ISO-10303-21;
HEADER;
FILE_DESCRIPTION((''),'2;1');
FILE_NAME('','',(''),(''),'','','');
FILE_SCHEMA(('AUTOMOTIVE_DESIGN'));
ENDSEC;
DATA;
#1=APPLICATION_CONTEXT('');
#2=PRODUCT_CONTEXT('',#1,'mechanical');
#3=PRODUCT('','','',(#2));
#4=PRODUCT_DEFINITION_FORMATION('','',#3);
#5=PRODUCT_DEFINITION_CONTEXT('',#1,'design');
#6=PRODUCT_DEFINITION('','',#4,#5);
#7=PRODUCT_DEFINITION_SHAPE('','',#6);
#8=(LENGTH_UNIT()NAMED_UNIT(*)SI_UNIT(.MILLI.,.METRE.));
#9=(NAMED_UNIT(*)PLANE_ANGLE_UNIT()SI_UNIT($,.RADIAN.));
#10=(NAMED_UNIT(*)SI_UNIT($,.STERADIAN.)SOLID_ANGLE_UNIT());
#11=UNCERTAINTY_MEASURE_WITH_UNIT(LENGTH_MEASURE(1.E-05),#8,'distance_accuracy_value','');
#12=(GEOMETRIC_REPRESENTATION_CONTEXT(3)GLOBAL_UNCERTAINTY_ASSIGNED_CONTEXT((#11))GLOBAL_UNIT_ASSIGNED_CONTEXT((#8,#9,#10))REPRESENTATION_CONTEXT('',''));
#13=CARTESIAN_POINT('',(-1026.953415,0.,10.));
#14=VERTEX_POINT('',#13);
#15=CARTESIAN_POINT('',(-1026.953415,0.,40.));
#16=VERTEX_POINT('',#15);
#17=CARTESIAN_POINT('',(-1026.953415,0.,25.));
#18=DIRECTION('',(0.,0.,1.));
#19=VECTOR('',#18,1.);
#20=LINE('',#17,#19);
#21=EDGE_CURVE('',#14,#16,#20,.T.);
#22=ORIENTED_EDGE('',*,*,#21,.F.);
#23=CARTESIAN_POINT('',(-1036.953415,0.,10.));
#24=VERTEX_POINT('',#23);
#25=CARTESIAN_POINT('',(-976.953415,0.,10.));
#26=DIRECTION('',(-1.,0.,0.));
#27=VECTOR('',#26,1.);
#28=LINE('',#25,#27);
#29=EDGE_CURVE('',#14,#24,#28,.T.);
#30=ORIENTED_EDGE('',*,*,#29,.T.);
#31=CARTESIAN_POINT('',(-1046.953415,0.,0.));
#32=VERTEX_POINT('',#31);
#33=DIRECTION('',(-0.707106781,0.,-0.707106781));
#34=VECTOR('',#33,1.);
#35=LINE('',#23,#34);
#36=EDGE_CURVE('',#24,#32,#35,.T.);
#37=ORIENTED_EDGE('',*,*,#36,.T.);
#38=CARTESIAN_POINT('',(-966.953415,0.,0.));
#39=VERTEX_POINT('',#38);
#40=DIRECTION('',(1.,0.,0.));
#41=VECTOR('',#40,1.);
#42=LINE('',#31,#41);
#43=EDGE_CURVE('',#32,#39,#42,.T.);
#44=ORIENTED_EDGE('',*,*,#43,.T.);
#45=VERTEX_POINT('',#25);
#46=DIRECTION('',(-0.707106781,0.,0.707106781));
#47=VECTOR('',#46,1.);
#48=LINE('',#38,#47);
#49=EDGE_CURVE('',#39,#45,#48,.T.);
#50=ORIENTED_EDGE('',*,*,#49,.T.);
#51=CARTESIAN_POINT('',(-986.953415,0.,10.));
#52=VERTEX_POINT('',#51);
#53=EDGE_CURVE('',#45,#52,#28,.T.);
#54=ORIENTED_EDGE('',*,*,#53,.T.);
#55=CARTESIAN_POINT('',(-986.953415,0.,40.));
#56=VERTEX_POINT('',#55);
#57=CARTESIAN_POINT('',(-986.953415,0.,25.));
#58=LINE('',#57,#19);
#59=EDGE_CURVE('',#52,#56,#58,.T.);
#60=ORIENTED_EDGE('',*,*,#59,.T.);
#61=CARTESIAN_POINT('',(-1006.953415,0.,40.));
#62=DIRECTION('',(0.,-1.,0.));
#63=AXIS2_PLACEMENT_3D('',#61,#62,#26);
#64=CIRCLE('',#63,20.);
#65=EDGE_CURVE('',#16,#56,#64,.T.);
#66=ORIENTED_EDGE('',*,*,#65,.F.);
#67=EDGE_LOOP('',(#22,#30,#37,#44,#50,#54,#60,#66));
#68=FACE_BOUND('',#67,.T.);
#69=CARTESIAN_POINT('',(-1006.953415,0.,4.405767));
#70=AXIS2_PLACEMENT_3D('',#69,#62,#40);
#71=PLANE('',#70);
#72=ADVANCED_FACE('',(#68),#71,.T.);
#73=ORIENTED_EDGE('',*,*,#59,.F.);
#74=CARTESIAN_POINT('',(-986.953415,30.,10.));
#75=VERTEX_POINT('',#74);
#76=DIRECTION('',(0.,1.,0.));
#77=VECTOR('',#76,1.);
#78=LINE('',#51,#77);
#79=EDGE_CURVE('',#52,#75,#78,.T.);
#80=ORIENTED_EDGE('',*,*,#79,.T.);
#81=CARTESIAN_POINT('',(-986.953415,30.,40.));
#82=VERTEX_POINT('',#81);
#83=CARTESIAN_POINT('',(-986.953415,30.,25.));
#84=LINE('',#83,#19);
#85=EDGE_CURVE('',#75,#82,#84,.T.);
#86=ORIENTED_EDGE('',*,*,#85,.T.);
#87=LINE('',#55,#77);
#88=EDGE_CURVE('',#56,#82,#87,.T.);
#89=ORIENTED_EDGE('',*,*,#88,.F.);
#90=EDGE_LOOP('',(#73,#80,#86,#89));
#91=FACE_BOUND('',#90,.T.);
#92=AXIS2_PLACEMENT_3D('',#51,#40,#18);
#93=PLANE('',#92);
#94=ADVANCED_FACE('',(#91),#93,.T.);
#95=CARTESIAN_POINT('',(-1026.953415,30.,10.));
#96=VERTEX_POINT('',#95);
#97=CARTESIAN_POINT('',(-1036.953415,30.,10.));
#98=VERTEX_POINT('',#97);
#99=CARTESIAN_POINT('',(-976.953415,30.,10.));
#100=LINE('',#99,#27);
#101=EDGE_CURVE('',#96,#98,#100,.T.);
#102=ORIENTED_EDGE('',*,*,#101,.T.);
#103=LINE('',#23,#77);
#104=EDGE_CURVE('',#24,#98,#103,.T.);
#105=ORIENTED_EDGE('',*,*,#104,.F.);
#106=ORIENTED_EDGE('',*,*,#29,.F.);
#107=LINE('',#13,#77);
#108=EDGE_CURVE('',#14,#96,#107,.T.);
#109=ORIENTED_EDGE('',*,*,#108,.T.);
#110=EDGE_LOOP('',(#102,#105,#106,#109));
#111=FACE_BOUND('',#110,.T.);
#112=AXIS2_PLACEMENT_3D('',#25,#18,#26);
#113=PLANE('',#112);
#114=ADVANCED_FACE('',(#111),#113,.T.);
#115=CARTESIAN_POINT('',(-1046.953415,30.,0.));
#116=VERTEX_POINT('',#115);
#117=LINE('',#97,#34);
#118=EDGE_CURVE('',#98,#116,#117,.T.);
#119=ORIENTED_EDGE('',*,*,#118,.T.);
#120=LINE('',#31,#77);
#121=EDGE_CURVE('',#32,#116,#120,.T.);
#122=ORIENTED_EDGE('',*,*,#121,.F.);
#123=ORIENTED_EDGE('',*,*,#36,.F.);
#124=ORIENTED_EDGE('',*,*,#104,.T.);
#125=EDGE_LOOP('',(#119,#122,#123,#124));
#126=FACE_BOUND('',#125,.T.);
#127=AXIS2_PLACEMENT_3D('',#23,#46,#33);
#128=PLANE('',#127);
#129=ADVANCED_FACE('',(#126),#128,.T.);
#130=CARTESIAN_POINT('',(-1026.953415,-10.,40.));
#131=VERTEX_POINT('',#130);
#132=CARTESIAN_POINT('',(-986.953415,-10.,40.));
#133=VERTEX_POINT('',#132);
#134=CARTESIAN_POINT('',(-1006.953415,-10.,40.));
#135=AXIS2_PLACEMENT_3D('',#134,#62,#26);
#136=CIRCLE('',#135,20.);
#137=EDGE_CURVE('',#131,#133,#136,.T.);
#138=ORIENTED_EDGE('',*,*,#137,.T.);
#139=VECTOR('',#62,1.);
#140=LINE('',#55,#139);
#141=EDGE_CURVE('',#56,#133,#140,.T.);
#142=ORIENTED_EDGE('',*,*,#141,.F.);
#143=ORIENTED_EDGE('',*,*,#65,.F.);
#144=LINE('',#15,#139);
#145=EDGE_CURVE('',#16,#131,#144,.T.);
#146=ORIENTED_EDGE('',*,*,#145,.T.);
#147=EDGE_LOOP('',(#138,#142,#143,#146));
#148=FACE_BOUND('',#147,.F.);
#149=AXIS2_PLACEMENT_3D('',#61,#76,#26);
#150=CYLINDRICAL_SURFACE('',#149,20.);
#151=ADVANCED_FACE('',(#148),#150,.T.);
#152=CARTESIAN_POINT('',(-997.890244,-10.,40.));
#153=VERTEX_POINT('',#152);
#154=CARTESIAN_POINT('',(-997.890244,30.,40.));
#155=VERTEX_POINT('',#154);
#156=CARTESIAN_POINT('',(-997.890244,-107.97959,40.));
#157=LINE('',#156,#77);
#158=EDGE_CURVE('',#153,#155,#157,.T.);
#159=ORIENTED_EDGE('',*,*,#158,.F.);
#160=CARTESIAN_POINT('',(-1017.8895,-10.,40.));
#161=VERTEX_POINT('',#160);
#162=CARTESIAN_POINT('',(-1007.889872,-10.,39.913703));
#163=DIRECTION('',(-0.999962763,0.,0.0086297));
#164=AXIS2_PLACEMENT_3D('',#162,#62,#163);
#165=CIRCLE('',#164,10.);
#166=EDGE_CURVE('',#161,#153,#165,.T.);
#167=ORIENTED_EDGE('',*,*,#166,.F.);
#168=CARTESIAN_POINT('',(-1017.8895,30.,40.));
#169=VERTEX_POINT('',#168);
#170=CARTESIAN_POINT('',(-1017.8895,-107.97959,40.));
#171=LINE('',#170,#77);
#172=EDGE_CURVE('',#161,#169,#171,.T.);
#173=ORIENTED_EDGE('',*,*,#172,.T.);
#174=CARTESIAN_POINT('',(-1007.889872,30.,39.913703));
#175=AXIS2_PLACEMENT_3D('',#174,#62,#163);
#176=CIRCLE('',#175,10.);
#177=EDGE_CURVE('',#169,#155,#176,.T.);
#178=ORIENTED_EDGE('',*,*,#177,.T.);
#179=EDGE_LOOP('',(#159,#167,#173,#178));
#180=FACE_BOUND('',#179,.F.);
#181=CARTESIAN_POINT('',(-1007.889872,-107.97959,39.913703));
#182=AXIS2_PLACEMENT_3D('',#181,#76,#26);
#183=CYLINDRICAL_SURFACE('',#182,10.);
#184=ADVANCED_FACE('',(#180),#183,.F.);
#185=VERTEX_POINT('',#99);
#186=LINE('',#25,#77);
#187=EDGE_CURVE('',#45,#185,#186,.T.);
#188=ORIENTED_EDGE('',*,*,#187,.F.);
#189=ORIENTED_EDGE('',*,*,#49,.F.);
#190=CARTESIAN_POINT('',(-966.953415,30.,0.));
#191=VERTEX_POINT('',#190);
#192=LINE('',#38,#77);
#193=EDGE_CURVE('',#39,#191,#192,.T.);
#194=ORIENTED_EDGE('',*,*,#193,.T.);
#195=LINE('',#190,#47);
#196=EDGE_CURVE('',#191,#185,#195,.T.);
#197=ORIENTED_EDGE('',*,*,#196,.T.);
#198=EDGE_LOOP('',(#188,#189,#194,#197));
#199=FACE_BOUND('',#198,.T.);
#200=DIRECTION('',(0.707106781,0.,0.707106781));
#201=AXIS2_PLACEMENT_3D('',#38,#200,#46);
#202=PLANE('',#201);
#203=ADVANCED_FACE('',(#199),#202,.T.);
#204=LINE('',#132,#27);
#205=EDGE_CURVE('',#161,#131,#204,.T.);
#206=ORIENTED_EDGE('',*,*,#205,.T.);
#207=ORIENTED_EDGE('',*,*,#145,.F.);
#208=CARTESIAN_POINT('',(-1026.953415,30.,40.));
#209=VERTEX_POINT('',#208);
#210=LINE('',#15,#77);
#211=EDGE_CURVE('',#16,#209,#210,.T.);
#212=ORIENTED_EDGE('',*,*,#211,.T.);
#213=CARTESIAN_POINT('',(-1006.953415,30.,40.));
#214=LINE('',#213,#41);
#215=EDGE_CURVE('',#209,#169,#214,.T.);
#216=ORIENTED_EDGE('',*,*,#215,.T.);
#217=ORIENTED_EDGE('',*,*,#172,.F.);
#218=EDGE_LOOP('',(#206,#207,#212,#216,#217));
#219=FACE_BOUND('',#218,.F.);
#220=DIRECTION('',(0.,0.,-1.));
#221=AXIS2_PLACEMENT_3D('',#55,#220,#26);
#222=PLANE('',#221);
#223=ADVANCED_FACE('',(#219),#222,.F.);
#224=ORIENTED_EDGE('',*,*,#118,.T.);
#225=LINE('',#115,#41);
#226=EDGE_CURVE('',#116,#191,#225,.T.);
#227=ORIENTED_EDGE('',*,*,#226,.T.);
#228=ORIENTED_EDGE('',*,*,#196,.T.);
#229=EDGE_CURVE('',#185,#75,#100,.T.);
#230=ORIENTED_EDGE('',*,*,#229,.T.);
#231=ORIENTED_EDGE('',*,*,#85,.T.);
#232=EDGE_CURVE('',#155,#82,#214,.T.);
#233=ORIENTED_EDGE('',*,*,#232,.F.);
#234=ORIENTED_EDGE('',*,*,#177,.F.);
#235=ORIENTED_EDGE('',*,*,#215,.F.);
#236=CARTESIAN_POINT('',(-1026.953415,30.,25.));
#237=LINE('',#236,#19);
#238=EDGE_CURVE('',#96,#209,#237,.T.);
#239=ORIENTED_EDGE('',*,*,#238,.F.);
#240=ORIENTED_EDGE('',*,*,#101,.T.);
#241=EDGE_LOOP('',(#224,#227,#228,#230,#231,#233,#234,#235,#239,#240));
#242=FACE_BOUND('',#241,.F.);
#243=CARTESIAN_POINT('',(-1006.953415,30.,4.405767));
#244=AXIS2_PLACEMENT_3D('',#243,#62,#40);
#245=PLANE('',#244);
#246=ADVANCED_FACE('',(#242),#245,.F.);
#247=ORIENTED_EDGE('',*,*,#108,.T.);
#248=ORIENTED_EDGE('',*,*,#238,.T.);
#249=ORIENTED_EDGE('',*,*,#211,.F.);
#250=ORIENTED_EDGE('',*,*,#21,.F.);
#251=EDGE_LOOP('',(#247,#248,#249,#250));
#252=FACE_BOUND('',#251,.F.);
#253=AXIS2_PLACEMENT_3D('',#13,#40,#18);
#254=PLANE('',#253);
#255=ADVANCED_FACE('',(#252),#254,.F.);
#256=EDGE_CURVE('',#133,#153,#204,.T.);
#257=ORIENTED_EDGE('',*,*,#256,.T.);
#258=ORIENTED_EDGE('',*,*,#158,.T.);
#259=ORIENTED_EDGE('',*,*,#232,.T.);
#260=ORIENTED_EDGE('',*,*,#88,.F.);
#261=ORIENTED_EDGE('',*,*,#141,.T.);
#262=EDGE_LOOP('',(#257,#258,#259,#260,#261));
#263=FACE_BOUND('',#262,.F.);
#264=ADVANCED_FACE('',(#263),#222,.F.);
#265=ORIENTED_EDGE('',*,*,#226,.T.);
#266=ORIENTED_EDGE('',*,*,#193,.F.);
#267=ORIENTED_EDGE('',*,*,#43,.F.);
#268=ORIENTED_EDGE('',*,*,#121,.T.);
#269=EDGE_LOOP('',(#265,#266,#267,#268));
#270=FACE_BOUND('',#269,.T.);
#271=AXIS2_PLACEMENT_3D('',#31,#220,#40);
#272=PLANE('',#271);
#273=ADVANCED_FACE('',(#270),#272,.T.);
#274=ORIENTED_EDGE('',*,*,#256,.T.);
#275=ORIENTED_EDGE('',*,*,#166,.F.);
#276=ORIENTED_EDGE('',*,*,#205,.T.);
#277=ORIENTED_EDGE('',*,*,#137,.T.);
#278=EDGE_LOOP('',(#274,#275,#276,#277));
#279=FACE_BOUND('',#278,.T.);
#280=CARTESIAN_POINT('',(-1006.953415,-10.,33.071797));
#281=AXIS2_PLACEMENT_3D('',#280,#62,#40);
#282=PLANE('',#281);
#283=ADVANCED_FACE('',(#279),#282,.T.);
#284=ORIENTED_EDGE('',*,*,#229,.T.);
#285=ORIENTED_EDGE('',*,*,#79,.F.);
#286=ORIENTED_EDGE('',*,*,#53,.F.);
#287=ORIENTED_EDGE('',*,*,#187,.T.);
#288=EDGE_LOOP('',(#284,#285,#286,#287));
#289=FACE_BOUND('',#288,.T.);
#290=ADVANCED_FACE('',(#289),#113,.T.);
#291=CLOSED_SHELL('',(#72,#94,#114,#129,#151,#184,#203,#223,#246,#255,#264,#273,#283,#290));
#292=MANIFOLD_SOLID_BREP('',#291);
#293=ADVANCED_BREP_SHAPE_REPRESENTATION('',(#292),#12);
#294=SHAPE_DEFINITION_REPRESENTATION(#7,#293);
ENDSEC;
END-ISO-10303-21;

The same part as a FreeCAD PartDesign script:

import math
import FreeCAD as App
import Part
import Sketcher

V = App.Vector


def add_polygon(sketch, points):
    """Adds a closed chain of lines whose ends are joined by coincident constraints."""
    first, n = sketch.GeometryCount, len(points)
    for a, b in zip(points, points[1:] + points[:1]):
        sketch.addGeometry(Part.LineSegment(App.Vector(*a, 0), App.Vector(*b, 0)), False)
    for i in range(n):
        sketch.addConstraint(Sketcher.Constraint("Coincident", first + i, 2, first + (i + 1) % n, 1))

doc = App.newDocument("Part")
body = doc.addObject("PartDesign::Body", "Body")

# Sketch on XZ plane
sketch1 = body.newObject("Sketcher::SketchObject", "Sketch")
sketch1.AttachmentSupport = (doc.getObject("XZ_Plane"), [""])
sketch1.MapMode = "FlatFace"
add_polygon(sketch1, [(-1036.953415, 10), (-1046.953415, 0), (-966.953415, 0), (-976.953415, 10)])  # lines 0-3
sketch1.addConstraint(Sketcher.Constraint("Horizontal", 1))
sketch1.addConstraint(Sketcher.Constraint("Horizontal", 3))
sketch1.addConstraint(Sketcher.Constraint("PointOnObject", 0, 2, -1))
sketch1.addConstraint(Sketcher.Constraint("Perpendicular", 0, 2))
sketch1.addConstraint(Sketcher.Constraint("Equal", 0, 2))
sketch1.addConstraint(Sketcher.Constraint("DistanceX", 1, 1, 1, 2, 80.0))
sketch1.addConstraint(Sketcher.Constraint("DistanceX", 3, 2, 3, 1, 60.0))
sketch1.addConstraint(Sketcher.Constraint("DistanceX", 0, 2, -1, 1, 1046.953415))
pad1 = body.newObject("PartDesign::Pad", "Pad")
pad1.Profile = sketch1
pad1.Length = 30
pad1.Reversed = True

# Sketch on XZ plane
sketch2 = body.newObject("Sketcher::SketchObject", "Sketch001")
sketch2.AttachmentSupport = (doc.getObject("XZ_Plane"), [""])
sketch2.MapMode = "FlatFace"
add_polygon(sketch2, [(-1026.953415, 40), (-1026.953415, 10), (-986.953415, 10), (-986.953415, 40)])  # lines 0-3
sketch2.addConstraint(Sketcher.Constraint("Vertical", 0))
sketch2.addConstraint(Sketcher.Constraint("Horizontal", 1))
sketch2.addConstraint(Sketcher.Constraint("Vertical", 2))
sketch2.addConstraint(Sketcher.Constraint("Horizontal", 3))
sketch2.addConstraint(Sketcher.Constraint("DistanceX", 1, 1, 1, 2, 40.0))
sketch2.addConstraint(Sketcher.Constraint("DistanceY", 0, 2, 0, 1, 30.0))
sketch2.addConstraint(Sketcher.Constraint("DistanceY", -1, 1, 0, 2, 10.0))
sketch2.addConstraint(Sketcher.Constraint("DistanceX", 0, 2, -1, 1, 1026.953415))
pad2 = body.newObject("PartDesign::Pad", "Pad001")
pad2.Profile = sketch2
pad2.Length = 30
pad2.Reversed = True

# Sketch on XZ plane
sketch3 = body.newObject("Sketcher::SketchObject", "Sketch002")
sketch3.AttachmentSupport = (doc.getObject("XZ_Plane"), [""])
sketch3.MapMode = "FlatFace"
sketch3.addGeometry(Part.LineSegment(V(-986.953415, 40, 0), V(-1026.953415, 40, 0)), False)
sketch3.addGeometry(Part.ArcOfCircle(Part.Circle(V(-1006.953415, 40, 0), V(0, 0, 1), 20), math.radians(180), math.radians(360)), False)
sketch3.addConstraint(Sketcher.Constraint("Coincident", 0, 1, 1, 2))
sketch3.addConstraint(Sketcher.Constraint("Coincident", 1, 1, 0, 2))
sketch3.addConstraint(Sketcher.Constraint("Horizontal", 0))
sketch3.addConstraint(Sketcher.Constraint("Horizontal", 1, 3, 0, 1))
sketch3.addConstraint(Sketcher.Constraint("Radius", 1, 20.0))
sketch3.addConstraint(Sketcher.Constraint("DistanceY", -1, 1, 1, 3, 40.0))
sketch3.addConstraint(Sketcher.Constraint("DistanceX", 1, 3, -1, 1, 1006.953415))
pad3 = body.newObject("PartDesign::Pad", "Pad002")
pad3.Profile = sketch3
pad3.Length = 10

# Sketch on XZ plane
sketch4 = body.newObject("Sketcher::SketchObject", "Sketch003")
sketch4.AttachmentSupport = (doc.getObject("XZ_Plane"), [""])
sketch4.MapMode = "FlatFace"
sketch4.AttachmentOffset = App.Placement(V(0, 0, 10), App.Rotation())
sketch4.addGeometry(Part.Circle(V(-1007.889872, 39.913703, 0), V(0, 0, 1), 10), False)
sketch4.addConstraint(Sketcher.Constraint("Diameter", 0, 20.0))
sketch4.addConstraint(Sketcher.Constraint("DistanceX", 0, 3, -1, 1, 1007.889872))
sketch4.addConstraint(Sketcher.Constraint("DistanceY", -1, 1, 0, 3, 39.913703))
doc.recompute()
hole = body.newObject("PartDesign::Hole", "Hole")
hole.Profile = sketch4
hole.ThreadType = "None"
hole.Diameter = 20
hole.DepthType = "ThroughAll"

doc.recompute()
